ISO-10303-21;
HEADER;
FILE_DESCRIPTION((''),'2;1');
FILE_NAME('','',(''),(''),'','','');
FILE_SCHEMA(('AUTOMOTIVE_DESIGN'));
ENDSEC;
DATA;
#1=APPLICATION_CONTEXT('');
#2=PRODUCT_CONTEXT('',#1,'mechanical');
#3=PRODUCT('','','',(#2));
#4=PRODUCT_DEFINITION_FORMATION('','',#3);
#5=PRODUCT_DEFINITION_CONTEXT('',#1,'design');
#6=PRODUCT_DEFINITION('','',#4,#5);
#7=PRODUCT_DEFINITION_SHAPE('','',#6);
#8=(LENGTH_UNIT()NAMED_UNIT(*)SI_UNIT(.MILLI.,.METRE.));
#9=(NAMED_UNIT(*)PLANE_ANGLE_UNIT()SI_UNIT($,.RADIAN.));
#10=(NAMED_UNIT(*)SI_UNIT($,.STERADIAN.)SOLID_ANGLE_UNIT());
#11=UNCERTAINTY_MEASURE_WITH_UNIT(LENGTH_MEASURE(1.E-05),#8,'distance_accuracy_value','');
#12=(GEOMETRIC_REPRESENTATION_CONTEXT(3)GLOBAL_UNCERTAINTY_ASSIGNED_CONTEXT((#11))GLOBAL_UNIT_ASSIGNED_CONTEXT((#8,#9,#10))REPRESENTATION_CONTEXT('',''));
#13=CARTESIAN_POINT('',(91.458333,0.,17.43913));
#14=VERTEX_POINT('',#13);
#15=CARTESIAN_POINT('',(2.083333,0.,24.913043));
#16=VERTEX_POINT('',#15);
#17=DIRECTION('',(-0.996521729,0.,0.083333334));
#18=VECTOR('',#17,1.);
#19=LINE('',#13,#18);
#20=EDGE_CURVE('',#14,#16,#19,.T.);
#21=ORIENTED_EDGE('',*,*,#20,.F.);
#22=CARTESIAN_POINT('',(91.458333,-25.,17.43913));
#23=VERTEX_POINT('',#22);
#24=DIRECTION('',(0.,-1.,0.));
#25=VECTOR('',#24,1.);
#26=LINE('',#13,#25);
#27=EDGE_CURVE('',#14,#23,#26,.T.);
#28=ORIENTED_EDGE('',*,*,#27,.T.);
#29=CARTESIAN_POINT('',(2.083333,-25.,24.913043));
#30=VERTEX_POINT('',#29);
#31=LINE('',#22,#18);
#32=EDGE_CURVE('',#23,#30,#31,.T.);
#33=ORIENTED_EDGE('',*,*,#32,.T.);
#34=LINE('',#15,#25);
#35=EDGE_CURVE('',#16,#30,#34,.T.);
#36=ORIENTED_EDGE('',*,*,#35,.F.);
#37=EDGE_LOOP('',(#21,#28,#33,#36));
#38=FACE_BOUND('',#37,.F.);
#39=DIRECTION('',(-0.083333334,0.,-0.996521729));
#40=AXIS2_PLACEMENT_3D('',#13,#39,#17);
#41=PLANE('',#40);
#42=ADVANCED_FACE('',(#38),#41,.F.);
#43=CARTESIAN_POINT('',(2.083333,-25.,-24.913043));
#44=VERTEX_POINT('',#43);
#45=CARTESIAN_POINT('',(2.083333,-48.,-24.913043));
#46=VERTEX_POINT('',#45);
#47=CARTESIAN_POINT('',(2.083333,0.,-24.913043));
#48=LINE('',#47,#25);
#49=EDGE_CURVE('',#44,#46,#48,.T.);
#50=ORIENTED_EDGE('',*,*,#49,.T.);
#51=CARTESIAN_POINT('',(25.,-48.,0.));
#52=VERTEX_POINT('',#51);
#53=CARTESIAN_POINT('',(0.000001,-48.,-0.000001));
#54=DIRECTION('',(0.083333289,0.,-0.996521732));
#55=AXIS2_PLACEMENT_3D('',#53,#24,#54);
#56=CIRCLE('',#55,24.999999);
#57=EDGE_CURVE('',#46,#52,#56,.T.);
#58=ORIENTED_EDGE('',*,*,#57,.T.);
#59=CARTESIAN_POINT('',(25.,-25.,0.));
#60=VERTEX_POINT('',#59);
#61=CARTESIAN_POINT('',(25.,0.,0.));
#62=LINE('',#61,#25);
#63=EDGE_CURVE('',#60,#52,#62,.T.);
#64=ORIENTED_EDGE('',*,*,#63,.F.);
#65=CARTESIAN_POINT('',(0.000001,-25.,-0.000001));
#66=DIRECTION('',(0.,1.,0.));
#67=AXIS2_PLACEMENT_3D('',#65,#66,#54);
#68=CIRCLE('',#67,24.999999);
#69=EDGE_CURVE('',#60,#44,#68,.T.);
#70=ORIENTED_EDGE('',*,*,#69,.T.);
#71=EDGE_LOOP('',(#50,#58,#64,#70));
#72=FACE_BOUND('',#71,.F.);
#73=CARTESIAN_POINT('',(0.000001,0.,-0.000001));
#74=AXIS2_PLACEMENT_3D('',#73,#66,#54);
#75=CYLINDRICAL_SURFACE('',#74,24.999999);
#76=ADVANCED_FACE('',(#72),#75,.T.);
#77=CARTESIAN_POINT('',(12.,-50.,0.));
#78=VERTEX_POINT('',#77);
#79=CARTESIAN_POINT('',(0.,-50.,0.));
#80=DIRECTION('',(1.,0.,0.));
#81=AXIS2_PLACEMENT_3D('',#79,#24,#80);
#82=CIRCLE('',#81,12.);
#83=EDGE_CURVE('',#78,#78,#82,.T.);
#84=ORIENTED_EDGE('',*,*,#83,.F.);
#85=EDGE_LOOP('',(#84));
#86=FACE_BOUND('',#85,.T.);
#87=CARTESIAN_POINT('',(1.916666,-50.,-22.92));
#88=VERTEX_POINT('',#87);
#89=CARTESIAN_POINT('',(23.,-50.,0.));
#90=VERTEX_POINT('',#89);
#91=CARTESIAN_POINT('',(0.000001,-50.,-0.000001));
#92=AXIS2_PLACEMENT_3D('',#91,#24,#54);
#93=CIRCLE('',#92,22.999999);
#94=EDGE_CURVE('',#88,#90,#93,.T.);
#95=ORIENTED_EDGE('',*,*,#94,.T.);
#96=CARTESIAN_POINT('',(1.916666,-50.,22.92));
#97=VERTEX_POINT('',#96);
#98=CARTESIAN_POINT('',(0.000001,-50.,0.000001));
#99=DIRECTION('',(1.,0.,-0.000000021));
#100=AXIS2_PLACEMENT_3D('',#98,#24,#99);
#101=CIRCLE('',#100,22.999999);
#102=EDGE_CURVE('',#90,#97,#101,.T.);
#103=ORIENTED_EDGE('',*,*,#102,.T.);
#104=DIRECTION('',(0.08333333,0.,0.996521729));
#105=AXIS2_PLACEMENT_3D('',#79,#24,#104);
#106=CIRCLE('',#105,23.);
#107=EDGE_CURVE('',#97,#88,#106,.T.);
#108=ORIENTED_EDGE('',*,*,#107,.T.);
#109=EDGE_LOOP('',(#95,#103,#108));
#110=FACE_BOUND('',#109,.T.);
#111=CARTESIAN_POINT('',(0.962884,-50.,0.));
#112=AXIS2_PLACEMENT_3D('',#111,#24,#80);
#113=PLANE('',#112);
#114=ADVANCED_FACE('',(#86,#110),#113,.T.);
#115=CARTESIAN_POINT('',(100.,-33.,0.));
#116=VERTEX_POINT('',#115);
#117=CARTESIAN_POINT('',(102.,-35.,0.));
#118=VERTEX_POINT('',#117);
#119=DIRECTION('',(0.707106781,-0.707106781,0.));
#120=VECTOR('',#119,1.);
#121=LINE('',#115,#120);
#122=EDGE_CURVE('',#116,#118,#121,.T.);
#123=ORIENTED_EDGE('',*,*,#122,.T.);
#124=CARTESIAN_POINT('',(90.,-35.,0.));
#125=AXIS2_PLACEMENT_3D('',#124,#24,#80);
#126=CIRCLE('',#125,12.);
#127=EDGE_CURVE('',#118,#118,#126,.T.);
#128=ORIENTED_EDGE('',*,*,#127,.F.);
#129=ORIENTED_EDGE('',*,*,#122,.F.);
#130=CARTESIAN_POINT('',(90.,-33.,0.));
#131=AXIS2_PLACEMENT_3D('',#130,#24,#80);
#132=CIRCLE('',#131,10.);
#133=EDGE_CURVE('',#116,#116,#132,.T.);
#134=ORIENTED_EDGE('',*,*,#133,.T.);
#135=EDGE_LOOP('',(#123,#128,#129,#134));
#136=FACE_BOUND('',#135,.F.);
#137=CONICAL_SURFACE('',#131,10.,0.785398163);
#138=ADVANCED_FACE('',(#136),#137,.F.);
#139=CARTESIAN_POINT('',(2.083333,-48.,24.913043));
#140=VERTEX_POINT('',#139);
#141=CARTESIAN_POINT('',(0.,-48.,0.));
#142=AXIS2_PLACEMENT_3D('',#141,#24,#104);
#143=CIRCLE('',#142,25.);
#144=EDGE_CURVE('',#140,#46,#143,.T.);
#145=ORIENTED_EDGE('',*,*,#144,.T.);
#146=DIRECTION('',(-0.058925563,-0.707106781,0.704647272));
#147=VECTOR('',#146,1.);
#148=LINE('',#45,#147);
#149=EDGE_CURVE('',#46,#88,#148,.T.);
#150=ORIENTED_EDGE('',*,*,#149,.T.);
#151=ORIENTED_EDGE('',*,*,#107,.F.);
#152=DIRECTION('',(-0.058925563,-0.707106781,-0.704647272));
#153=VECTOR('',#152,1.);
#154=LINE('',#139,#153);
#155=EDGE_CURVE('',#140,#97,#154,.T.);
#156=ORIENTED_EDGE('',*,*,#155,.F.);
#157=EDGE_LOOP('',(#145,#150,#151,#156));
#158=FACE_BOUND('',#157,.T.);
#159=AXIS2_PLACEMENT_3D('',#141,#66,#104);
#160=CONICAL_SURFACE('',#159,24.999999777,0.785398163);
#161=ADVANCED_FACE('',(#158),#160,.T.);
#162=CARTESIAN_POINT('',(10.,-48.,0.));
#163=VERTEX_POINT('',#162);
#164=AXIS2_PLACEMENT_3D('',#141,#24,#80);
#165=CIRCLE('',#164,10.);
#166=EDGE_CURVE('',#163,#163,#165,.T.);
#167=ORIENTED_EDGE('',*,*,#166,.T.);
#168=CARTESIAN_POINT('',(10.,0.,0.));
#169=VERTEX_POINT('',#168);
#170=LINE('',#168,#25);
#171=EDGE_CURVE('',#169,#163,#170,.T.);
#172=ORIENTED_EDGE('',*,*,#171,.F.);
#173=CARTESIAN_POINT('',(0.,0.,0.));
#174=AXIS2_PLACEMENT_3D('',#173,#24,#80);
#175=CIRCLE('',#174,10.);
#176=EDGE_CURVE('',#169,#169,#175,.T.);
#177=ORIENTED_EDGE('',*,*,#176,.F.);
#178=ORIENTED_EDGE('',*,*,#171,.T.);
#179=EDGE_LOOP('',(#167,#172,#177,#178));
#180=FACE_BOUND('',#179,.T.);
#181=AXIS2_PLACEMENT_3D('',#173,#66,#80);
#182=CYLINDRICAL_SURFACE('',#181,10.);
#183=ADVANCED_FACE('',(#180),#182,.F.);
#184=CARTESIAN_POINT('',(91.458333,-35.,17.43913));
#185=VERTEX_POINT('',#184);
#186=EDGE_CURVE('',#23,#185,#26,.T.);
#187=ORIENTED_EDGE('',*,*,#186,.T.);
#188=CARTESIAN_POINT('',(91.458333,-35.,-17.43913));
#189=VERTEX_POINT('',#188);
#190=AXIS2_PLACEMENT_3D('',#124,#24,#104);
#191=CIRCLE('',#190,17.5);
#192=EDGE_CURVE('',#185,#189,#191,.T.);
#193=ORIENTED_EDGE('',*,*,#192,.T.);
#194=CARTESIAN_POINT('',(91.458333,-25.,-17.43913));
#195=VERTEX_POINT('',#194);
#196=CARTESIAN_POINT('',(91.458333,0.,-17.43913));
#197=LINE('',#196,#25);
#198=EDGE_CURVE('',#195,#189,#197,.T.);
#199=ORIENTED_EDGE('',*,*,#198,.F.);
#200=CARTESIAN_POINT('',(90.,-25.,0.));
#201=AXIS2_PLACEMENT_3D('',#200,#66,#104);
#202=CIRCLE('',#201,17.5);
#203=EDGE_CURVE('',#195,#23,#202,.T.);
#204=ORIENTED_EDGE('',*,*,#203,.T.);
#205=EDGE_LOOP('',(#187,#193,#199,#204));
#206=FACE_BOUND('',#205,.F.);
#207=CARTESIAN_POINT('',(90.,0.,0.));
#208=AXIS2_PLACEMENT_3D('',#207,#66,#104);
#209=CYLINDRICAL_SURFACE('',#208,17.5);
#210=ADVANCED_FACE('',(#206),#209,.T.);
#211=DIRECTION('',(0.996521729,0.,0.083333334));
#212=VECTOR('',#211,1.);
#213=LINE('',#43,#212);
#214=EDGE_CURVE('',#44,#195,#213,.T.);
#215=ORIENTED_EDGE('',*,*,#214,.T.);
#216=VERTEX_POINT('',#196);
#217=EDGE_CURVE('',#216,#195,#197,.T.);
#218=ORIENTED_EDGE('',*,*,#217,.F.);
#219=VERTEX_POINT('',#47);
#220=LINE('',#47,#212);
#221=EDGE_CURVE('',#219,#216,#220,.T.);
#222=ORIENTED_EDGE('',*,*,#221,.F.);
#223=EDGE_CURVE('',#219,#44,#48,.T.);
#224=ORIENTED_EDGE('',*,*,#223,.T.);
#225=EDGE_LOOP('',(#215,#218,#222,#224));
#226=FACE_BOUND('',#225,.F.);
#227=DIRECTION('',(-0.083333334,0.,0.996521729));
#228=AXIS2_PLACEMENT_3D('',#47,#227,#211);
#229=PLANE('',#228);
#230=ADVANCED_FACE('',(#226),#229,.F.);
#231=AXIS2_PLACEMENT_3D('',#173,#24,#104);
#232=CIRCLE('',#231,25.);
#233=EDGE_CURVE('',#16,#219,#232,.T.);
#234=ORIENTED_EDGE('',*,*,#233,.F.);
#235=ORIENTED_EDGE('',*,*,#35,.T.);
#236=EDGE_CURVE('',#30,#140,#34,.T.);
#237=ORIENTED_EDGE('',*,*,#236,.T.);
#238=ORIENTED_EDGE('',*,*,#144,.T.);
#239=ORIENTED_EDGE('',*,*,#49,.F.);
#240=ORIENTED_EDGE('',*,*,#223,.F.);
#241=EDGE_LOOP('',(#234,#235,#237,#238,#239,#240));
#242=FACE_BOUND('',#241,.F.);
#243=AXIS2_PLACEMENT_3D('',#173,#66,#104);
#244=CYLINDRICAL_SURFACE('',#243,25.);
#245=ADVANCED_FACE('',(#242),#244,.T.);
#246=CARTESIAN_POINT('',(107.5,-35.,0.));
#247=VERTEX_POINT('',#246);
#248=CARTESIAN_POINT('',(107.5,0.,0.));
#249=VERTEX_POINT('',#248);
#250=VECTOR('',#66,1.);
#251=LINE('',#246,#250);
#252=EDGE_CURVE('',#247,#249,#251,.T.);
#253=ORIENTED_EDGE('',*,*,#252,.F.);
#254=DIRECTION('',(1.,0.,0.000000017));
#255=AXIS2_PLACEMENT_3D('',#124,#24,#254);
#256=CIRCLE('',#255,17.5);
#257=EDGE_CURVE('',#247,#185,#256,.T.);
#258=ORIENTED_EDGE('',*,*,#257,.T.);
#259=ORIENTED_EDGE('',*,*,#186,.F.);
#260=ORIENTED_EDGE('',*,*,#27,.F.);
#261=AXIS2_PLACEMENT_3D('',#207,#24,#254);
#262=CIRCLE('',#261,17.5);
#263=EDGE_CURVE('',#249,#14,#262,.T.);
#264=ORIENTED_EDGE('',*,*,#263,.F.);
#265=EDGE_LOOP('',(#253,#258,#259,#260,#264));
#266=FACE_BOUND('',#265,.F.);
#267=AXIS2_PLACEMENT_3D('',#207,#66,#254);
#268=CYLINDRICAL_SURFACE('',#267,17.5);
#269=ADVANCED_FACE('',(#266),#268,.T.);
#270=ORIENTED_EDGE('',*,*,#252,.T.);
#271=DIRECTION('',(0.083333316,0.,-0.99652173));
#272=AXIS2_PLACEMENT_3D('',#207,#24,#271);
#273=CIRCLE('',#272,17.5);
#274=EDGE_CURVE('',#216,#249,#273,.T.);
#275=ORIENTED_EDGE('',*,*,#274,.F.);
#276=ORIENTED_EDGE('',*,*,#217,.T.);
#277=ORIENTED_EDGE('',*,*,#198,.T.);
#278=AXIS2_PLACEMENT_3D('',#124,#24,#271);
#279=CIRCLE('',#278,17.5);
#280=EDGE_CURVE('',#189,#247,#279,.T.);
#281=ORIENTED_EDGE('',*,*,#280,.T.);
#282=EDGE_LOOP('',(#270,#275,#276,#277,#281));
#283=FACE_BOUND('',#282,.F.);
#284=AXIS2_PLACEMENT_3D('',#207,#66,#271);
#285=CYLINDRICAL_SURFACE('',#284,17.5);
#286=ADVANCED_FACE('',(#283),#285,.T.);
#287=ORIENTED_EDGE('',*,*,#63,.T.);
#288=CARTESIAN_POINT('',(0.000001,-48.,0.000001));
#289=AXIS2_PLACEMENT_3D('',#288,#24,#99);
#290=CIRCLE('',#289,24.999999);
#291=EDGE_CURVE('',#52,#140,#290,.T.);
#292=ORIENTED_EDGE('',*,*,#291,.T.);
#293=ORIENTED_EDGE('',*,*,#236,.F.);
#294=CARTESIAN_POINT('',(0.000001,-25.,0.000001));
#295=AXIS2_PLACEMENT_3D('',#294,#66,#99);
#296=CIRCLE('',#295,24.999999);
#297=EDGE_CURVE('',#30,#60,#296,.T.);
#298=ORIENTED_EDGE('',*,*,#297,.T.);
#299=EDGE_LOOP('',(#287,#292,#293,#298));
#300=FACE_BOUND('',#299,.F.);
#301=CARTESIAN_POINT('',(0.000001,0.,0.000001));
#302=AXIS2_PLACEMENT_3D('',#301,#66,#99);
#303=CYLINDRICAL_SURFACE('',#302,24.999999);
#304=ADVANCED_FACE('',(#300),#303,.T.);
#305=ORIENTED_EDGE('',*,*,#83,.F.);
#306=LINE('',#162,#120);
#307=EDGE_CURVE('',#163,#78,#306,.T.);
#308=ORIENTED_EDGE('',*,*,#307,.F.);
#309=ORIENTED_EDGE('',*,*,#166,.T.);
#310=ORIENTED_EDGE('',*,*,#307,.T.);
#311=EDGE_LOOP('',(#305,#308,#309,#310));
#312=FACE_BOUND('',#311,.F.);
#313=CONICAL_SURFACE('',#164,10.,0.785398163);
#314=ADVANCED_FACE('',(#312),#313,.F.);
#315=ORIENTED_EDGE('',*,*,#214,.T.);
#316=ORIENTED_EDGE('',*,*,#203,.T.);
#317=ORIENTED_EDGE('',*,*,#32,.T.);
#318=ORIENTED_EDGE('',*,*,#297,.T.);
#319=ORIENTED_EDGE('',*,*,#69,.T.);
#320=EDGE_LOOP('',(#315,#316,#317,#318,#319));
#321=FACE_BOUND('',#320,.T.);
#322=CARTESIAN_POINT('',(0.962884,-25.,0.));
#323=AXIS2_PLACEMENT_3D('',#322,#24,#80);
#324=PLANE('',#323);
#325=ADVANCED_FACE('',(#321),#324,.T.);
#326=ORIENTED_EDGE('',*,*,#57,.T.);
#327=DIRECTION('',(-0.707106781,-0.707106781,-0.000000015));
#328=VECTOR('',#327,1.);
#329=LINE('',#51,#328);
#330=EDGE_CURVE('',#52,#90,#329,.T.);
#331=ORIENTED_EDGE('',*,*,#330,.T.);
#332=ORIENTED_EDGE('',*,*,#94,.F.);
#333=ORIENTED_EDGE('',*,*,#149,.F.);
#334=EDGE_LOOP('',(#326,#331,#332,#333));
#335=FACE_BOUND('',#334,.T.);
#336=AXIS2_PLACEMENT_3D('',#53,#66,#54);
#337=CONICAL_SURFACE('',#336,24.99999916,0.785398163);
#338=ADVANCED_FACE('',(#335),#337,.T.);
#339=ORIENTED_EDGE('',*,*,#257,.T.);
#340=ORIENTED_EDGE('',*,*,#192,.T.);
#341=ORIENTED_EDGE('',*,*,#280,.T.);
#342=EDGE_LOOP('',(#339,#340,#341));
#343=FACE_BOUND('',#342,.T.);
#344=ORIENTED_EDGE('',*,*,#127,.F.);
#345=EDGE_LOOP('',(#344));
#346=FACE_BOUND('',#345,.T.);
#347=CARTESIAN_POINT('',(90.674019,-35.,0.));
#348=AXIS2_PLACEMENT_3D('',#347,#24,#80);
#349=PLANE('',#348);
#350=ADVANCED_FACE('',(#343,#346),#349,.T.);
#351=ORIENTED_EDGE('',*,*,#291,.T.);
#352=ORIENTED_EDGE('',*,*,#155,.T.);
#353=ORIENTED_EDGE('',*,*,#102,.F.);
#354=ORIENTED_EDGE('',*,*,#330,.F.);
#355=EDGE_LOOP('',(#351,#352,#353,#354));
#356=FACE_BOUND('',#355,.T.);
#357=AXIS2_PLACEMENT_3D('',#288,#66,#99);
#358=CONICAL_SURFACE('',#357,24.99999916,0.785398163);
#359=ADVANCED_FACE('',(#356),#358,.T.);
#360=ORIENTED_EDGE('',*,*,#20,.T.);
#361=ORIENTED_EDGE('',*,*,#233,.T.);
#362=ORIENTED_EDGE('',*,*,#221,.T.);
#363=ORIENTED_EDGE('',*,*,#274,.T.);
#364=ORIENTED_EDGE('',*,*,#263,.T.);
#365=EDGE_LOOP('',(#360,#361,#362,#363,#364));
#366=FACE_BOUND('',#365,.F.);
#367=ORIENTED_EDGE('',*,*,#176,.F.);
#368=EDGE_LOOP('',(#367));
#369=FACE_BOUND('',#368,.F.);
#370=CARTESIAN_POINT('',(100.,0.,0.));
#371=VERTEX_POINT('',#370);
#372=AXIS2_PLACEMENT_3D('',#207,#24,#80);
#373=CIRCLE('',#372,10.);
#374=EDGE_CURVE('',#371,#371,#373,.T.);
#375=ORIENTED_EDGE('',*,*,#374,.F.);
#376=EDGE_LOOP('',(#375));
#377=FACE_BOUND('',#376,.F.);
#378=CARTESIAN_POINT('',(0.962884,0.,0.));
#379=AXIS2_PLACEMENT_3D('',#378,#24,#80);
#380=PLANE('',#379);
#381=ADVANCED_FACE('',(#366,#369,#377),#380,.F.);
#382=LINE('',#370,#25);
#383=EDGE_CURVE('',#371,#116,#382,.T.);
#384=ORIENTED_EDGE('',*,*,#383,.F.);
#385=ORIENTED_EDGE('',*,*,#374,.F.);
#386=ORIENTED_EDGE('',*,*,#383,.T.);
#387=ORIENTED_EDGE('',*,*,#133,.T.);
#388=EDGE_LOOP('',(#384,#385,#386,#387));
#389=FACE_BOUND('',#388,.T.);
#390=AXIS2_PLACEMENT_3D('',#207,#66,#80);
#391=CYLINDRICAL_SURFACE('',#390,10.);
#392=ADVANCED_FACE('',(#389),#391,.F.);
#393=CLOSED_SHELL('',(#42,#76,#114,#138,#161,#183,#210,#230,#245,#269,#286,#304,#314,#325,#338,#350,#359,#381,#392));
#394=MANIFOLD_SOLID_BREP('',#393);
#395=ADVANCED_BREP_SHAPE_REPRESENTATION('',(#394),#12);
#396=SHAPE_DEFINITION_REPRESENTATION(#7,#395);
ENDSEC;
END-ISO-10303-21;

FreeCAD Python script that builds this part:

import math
import FreeCAD as App
import Part
import Sketcher


def edges_at(feature, points):
    """Names of the edges that pass closest to the given points."""
    edges = feature.Shape.Edges
    near = lambda p: min(range(len(edges)), key=lambda i: edges[i].distToShape(Part.Vertex(*p))[0])
    return sorted({f"Edge{near(p) + 1}" for p in points})

doc = App.newDocument("Part")
body = doc.addObject("PartDesign::Body", "Body")

# Sketch on XZ plane
sketch1 = doc.addObject("Sketcher::SketchObject", "Sketch")
body.addObject(sketch1)
sketch1.AttachmentSupport = (doc.XZ_Plane, [""])
sketch1.MapMode = "FlatFace"
sketch1.addGeometry([
    Part.ArcOfCircle(Part.Circle(App.Vector(0, 0, 0), App.Vector(0, 0, 1), 25), math.radians(85.219808), math.radians(274.780192)),  # 0
    Part.LineSegment(App.Vector(2.083333, -24.913043, 0), App.Vector(91.458333, -17.43913, 0)),  # 1
    Part.ArcOfCircle(Part.Circle(App.Vector(90, 0, 0), App.Vector(0, 0, 1), 17.5), math.radians(-85.219809), math.radians(-0.000001)),  # 2
    Part.ArcOfCircle(Part.Circle(App.Vector(90, 0, 0), App.Vector(0, 0, 1), 17.5), math.radians(0.000001), math.radians(85.219809)),  # 3
    Part.LineSegment(App.Vector(91.458333, 17.43913, 0), App.Vector(2.083333, 24.913043, 0)),  # 4
    Part.Circle(App.Vector(0, 0, 0), App.Vector(0, 0, 1), 10),  # 5
    Part.Circle(App.Vector(90, 0, 0), App.Vector(0, 0, 1), 10),  # 6
], False)
sketch1.addConstraint([
    Sketcher.Constraint("Tangent", 0, 2, 1, 1),
    Sketcher.Constraint("Tangent", 1, 2, 2, 1),
    Sketcher.Constraint("Tangent", 2, 2, 3, 1),
    Sketcher.Constraint("Tangent", 3, 2, 4, 1),
    Sketcher.Constraint("Tangent", 4, 2, 0, 1),
    Sketcher.Constraint("Coincident", 0, 3, -1, 1),
    Sketcher.Constraint("Coincident", 5, 3, -1, 1),
    Sketcher.Constraint("Coincident", 6, 3, 2, 3),
    Sketcher.Constraint("Equal", 2, 3),
    Sketcher.Constraint("Equal", 5, 6),
    Sketcher.Constraint("PointOnObject", 2, 3, -1),
    Sketcher.Constraint("PointOnObject", 2, 2, -1),
    Sketcher.Constraint("Diameter", 5, 20.0),
    Sketcher.Constraint("Radius", 0, 25.0),
    Sketcher.Constraint("Radius", 2, 17.5),
    Sketcher.Constraint("DistanceX", -1, 1, 2, 3, 90.0),
])
pad1 = doc.addObject("PartDesign::Pad", "Pad")
body.addObject(pad1)
pad1.Profile = sketch1
pad1.Length = 25

# Sketch on XZ plane
sketch2 = doc.addObject("Sketcher::SketchObject", "Sketch001")
body.addObject(sketch2)
sketch2.AttachmentSupport = (doc.XZ_Plane, [""])
sketch2.MapMode = "FlatFace"
sketch2.addGeometry([
    Part.ArcOfCircle(Part.Circle(App.Vector(0.000001, -0.000001, 0), App.Vector(0, 0, 1), 24.999999), math.radians(-85.219811), math.radians(0.000001)),
    Part.ArcOfCircle(Part.Circle(App.Vector(0.000001, 0.000001, 0), App.Vector(0, 0, 1), 24.999999), math.radians(-0.000001), math.radians(85.219811)),
    Part.ArcOfCircle(Part.Circle(App.Vector(0, 0, 0), App.Vector(0, 0, 1), 25), math.radians(85.219808), math.radians(274.780192)),
    Part.Circle(App.Vector(0, 0, 0), App.Vector(0, 0, 1), 10),
], False)
sketch2.addConstraint([
    Sketcher.Constraint("Tangent", 0, 2, 1, 1),
    Sketcher.Constraint("Tangent", 1, 2, 2, 1),
    Sketcher.Constraint("Tangent", 2, 2, 0, 1),
    Sketcher.Constraint("Coincident", 0, 3, -1, 1),
    Sketcher.Constraint("Coincident", 3, 3, -1, 1),
    Sketcher.Constraint("PointOnObject", 0, 2, -1),
    Sketcher.Constraint("Vertical", 1, 2, 2, 2),
    Sketcher.Constraint("Diameter", 3, 20.0),
    Sketcher.Constraint("Radius", 0, 24.999999),
    Sketcher.Constraint("DistanceX", -1, 1, 1, 2, 2.083333),
])
pad2 = doc.addObject("PartDesign::Pad", "Pad001")
body.addObject(pad2)
pad2.Profile = sketch2
pad2.Length = 50
doc.recompute()

chamfer = doc.addObject("PartDesign::Chamfer", "Chamfer")
body.addObject(chamfer)
chamfer.Base = (pad2, edges_at(pad2, [(-25, -50, 0), (-10, -50, 0), (80, -25, 0)]))
chamfer.Size = 2

# Sketch on XZ plane
sketch3 = doc.addObject("Sketcher::SketchObject", "Sketch002")
body.addObject(sketch3)
sketch3.AttachmentSupport = (doc.XZ_Plane, [""])
sketch3.MapMode = "FlatFace"
sketch3.addGeometry([
    Part.ArcOfCircle(Part.Circle(App.Vector(90, 0, 0), App.Vector(0, 0, 1), 17.5), math.radians(0.000001), math.radians(85.219809)),
    Part.ArcOfCircle(Part.Circle(App.Vector(90, 0, 0), App.Vector(0, 0, 1), 17.5), math.radians(85.219808), math.radians(274.780192)),
    Part.ArcOfCircle(Part.Circle(App.Vector(90, 0, 0), App.Vector(0, 0, 1), 17.5), math.radians(-85.219809), math.radians(-0.000001)),
    Part.Circle(App.Vector(90, 0, 0), App.Vector(0, 0, 1), 10),
], False)
sketch3.addConstraint([
    Sketcher.Constraint("Tangent", 0, 2, 1, 1),
    Sketcher.Constraint("Tangent", 1, 2, 2, 1),
    Sketcher.Constraint("Tangent", 2, 2, 0, 1),
    Sketcher.Constraint("Coincident", 3, 3, 0, 3),
    Sketcher.Constraint("Symmetric", 0, 2, 1, 2, -1),
    Sketcher.Constraint("PointOnObject", 2, 2, -1),
    Sketcher.Constraint("Diameter", 3, 20.0),
    Sketcher.Constraint("Radius", 0, 17.5),
    Sketcher.Constraint("DistanceX", -1, 1, 0, 3, 90.0),
    Sketcher.Constraint("DistanceY", -1, 1, 0, 2, 17.43913),
])
pad3 = doc.addObject("PartDesign::Pad", "Pad002")
body.addObject(pad3)
pad3.Profile = sketch3
pad3.Length = 35
doc.recompute()

chamfer2 = doc.addObject("PartDesign::Chamfer", "Chamfer001")
body.addObject(chamfer2)
chamfer2.Base = (pad3, edges_at(pad3, [(80, -35, 0)]))
chamfer2.Size = 2

doc.recompute()
